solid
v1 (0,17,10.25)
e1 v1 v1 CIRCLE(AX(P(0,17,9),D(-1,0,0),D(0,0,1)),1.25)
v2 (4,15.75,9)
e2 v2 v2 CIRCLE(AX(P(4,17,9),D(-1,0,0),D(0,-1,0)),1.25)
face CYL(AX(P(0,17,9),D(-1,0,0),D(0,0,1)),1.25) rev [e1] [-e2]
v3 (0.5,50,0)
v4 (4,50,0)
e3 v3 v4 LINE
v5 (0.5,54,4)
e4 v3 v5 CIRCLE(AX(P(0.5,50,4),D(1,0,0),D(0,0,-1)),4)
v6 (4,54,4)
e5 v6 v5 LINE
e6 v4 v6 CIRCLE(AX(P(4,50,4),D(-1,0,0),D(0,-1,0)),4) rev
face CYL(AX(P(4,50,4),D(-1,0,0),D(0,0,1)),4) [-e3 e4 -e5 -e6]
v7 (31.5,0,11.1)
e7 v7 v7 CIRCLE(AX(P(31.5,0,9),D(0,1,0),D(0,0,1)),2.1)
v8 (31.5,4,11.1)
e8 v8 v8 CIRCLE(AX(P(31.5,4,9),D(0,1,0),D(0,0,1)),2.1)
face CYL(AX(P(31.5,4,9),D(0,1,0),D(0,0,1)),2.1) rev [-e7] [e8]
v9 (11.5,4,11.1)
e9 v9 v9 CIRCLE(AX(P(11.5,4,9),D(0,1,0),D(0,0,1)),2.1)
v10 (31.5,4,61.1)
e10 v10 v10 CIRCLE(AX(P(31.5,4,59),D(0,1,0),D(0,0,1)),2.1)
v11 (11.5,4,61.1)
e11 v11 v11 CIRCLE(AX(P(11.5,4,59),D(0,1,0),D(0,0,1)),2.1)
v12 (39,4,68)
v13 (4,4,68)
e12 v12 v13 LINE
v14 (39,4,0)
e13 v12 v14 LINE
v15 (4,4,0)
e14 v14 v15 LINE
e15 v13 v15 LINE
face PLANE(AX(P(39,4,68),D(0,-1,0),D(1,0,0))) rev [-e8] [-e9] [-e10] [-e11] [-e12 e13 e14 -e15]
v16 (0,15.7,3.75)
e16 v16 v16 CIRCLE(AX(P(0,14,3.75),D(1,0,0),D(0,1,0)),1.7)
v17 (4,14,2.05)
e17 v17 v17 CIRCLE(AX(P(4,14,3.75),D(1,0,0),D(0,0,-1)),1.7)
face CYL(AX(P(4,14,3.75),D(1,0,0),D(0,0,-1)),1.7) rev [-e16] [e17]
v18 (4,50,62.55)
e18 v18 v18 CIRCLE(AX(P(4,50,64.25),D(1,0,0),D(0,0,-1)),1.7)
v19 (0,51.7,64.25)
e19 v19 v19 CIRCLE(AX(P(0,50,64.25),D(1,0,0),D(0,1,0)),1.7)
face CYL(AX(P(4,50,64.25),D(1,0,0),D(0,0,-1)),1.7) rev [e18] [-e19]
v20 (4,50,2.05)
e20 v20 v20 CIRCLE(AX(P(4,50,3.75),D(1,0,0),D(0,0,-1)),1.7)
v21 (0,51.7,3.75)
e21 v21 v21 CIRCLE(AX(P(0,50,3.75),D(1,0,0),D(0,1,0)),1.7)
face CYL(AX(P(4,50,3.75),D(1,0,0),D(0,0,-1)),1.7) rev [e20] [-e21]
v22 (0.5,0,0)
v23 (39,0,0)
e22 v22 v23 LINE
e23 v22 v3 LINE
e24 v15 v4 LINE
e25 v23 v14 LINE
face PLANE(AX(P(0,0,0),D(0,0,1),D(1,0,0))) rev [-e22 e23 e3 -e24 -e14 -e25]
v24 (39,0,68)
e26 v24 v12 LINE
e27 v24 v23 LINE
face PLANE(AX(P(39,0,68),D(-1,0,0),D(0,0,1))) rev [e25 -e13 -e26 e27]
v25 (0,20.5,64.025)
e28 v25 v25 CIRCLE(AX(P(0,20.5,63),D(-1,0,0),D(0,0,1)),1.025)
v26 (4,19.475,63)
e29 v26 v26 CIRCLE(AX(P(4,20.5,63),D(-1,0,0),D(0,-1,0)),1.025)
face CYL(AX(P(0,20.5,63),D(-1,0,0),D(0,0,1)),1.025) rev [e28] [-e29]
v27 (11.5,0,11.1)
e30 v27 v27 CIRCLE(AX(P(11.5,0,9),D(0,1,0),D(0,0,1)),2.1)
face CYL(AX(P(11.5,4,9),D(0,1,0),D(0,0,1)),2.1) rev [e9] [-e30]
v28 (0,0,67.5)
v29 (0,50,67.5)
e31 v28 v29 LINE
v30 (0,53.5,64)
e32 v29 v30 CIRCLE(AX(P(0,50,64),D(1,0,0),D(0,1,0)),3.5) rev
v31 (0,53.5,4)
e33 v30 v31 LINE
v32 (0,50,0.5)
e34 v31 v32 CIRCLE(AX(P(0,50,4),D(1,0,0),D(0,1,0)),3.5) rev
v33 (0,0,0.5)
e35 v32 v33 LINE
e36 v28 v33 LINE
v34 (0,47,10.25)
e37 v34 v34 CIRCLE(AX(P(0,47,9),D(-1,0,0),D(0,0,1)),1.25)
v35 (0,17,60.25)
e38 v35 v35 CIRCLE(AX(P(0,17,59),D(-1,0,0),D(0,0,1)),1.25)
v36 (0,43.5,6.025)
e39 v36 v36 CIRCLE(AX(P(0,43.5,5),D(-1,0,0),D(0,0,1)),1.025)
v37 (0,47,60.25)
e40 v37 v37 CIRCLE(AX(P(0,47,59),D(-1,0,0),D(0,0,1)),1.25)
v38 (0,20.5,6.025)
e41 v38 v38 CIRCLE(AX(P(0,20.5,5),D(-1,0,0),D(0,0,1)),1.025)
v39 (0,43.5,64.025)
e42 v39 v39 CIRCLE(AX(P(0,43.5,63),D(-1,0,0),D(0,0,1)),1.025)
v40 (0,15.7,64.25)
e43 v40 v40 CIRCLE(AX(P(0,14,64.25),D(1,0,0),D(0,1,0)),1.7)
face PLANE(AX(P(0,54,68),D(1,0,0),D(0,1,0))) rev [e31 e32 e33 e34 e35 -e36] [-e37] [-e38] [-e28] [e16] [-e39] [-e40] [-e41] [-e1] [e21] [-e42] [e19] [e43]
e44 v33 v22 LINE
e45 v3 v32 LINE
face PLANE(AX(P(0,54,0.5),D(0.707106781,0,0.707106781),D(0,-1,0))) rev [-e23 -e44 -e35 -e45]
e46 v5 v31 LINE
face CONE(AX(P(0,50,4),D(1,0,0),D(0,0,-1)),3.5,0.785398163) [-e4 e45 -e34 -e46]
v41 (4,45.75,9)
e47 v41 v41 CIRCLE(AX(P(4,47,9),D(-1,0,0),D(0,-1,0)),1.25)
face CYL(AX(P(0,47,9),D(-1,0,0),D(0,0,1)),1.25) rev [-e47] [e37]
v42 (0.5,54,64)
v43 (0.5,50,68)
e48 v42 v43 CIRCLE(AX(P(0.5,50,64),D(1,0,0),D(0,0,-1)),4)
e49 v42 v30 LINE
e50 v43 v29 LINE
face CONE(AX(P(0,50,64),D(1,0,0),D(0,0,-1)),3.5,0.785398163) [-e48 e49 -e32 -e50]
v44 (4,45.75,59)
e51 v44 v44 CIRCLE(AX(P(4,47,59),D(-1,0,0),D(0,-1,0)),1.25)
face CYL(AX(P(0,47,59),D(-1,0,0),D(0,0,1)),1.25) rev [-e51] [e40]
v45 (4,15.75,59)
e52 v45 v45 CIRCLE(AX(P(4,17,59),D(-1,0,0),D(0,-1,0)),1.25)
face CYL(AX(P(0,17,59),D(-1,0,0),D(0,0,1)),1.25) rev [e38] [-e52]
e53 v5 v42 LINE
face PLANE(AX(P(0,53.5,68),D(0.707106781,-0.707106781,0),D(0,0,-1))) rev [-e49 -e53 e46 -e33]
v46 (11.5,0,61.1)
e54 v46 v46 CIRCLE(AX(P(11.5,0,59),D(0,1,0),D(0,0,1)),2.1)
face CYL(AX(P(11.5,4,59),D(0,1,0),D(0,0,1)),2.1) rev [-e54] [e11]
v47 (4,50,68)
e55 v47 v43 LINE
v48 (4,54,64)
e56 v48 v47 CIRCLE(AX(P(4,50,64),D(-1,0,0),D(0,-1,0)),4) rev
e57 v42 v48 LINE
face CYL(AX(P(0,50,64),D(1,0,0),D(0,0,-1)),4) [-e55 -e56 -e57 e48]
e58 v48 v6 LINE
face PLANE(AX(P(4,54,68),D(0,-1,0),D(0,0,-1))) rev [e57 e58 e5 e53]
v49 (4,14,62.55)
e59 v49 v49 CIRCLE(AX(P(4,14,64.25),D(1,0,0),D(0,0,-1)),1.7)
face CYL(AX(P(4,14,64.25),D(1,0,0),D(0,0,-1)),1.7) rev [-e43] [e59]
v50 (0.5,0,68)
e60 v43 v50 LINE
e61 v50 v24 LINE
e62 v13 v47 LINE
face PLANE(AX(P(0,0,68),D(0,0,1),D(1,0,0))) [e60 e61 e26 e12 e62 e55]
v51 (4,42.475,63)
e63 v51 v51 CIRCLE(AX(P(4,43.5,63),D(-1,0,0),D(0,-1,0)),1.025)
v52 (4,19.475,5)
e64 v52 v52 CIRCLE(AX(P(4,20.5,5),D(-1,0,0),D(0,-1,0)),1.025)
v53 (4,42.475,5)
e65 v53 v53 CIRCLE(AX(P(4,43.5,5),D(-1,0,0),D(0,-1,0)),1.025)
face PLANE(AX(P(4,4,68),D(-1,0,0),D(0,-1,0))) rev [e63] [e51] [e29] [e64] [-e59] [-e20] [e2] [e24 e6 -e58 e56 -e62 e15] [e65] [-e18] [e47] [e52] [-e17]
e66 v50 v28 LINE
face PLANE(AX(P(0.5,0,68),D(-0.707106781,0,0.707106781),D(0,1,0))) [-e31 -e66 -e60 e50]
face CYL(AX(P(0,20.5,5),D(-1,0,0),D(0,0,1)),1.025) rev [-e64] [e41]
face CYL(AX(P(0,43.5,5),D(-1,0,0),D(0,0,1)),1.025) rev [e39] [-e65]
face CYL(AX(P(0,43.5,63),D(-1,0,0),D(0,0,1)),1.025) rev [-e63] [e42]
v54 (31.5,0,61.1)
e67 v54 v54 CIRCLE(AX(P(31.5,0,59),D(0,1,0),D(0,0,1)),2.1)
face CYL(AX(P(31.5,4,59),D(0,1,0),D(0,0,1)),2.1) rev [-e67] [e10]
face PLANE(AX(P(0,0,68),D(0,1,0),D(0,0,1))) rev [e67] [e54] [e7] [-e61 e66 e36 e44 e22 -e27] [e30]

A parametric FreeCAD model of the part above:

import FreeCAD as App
import Part
import Sketcher
Q = App.Units.Quantity


def edges_at(feature, points):
    """Names of the edges that pass closest to the given points."""
    edges = feature.Shape.Edges
    near = lambda p: min(range(len(edges)), key=lambda i: edges[i].distToShape(Part.Vertex(*p))[0])
    return sorted({f"Edge{near(p) + 1}" for p in points})

doc = App.newDocument("Part")
body = doc.addObject("PartDesign::Body", "Body")

sketch1 = doc.addObject("Sketcher::SketchObject", "Sketch")
body.addObject(sketch1)
sketch1.AttachmentSupport = (doc.XY_Plane, [""])
sketch1.MapMode = "FlatFace"
sketch1.addGeometry(Part.LineSegment(App.Vector(0, 0, 0), App.Vector(39, 0, 0)), False)
sketch1.addGeometry(Part.LineSegment(App.Vector(39, 0, 0), App.Vector(39, 4, 0)), False)
sketch1.addGeometry(Part.LineSegment(App.Vector(39, 4, 0), App.Vector(4, 4, 0)), False)
sketch1.addGeometry(Part.LineSegment(App.Vector(4, 4, 0), App.Vector(4, 54, 0)), False)
sketch1.addGeometry(Part.LineSegment(App.Vector(4, 54, 0), App.Vector(0, 54, 0)), False)
sketch1.addGeometry(Part.LineSegment(App.Vector(0, 54, 0), App.Vector(0, 0, 0)), False)
sketch1.addConstraint(Sketcher.Constraint("Coincident", 0, 2, 1, 1))
sketch1.addConstraint(Sketcher.Constraint("Coincident", 1, 2, 2, 1))
sketch1.addConstraint(Sketcher.Constraint("Coincident", 2, 2, 3, 1))
sketch1.addConstraint(Sketcher.Constraint("Coincident", 3, 2, 4, 1))
sketch1.addConstraint(Sketcher.Constraint("Coincident", 4, 2, 5, 1))
sketch1.addConstraint(Sketcher.Constraint("Coincident", 5, 2, 0, 1))
sketch1.addConstraint(Sketcher.Constraint("Horizontal", 0))
sketch1.addConstraint(Sketcher.Constraint("Vertical", 1))
sketch1.addConstraint(Sketcher.Constraint("Horizontal", 2))
sketch1.addConstraint(Sketcher.Constraint("Vertical", 3))
sketch1.addConstraint(Sketcher.Constraint("Horizontal", 4))
sketch1.addConstraint(Sketcher.Constraint("Vertical", 5))
sketch1.addConstraint(Sketcher.Constraint("Coincident", 5, 2, -1, 1))
sketch1.addConstraint(Sketcher.Constraint("Equal", 4, 1))
sketch1.addConstraint(Sketcher.Constraint("DistanceX", 0, 1, 0, 2, Q("39 mm")))
sketch1.addConstraint(Sketcher.Constraint("DistanceX", 2, 2, 2, 1, Q("35 mm")))
sketch1.addConstraint(Sketcher.Constraint("DistanceY", 3, 1, 3, 2, Q("50 mm")))
pad1 = doc.addObject("PartDesign::Pad", "Pad")
body.addObject(pad1)
pad1.Profile = sketch1
pad1.Length = 68

sketch2 = doc.addObject("Sketcher::SketchObject", "Sketch001")
body.addObject(sketch2)
sketch2.AttachmentSupport = (doc.YZ_Plane, [""])
sketch2.MapMode = "FlatFace"
sketch2.AttachmentOffset = App.Placement(App.Vector(0, 0, 4), App.Rotation())
sketch2.addGeometry(Part.Circle(App.Vector(50, 64.2, 0), App.Vector(0, 0, 1), 1.7), False)
sketch2.addGeometry(Part.Circle(App.Vector(50, 3.8, 0), App.Vector(0, 0, 1), 1.7), False)
sketch2.addGeometry(Part.Circle(App.Vector(14, 3.8, 0), App.Vector(0, 0, 1), 1.7), False)
sketch2.addGeometry(Part.Circle(App.Vector(14, 64.2, 0), App.Vector(0, 0, 1), 1.7), False)
sketch2.addConstraint(Sketcher.Constraint("Equal", 0, 1))
sketch2.addConstraint(Sketcher.Constraint("Equal", 1, 2))
sketch2.addConstraint(Sketcher.Constraint("Equal", 2, 3))
sketch2.addConstraint(Sketcher.Constraint("Horizontal", 1, 3, 2, 3))
sketch2.addConstraint(Sketcher.Constraint("Horizontal", 0, 3, 3, 3))
sketch2.addConstraint(Sketcher.Constraint("Vertical", 0, 3, 1, 3))
sketch2.addConstraint(Sketcher.Constraint("Vertical", 2, 3, 3, 3))
sketch2.addConstraint(Sketcher.Constraint("Diameter", 0, Q("3.4 mm")))
sketch2.addConstraint(Sketcher.Constraint("DistanceX", -1, 1, 0, 3, Q("50 mm")))
sketch2.addConstraint(Sketcher.Constraint("DistanceX", -1, 1, 2, 3, Q("14 mm")))
sketch2.addConstraint(Sketcher.Constraint("DistanceY", 1, 3, 0, 3, Q("60.5 mm")))
sketch2.addConstraint(Sketcher.Constraint("DistanceY", -1, 1, 0, 3, Q("64.25 mm")))
doc.recompute()
hole = doc.addObject("PartDesign::Hole", "Hole")
body.addObject(hole)
hole.Profile = sketch2
hole.ThreadType = "None"
hole.Diameter = 3.4
hole.DepthType = "Dimension"
hole.Depth = 5
hole.DrillPoint = "Angled"
hole.DrillPointAngle = 118

sketch3 = doc.addObject("Sketcher::SketchObject", "Sketch002")
body.addObject(sketch3)
sketch3.AttachmentSupport = (doc.XZ_Plane, [""])
sketch3.MapMode = "FlatFace"
sketch3.AttachmentOffset = App.Placement(App.Vector(0, 0, -4), App.Rotation())
sketch3.addGeometry(Part.Circle(App.Vector(31.5, 59, 0), App.Vector(0, 0, 1), 2.1), False)
sketch3.addGeometry(Part.Circle(App.Vector(11.5, 59, 0), App.Vector(0, 0, 1), 2.1), False)
sketch3.addGeometry(Part.Circle(App.Vector(11.5, 9, 0), App.Vector(0, 0, 1), 2.1), False)
sketch3.addGeometry(Part.Circle(App.Vector(31.5, 9, 0), App.Vector(0, 0, 1), 2.1), False)
sketch3.addConstraint(Sketcher.Constraint("Equal", 0, 1))
sketch3.addConstraint(Sketcher.Constraint("Equal", 1, 2))
sketch3.addConstraint(Sketcher.Constraint("Equal", 2, 3))
sketch3.addConstraint(Sketcher.Constraint("Horizontal", 0, 3, 1, 3))
sketch3.addConstraint(Sketcher.Constraint("Horizontal", 2, 3, 3, 3))
sketch3.addConstraint(Sketcher.Constraint("Vertical", 1, 3, 2, 3))
sketch3.addConstraint(Sketcher.Constraint("Vertical", 0, 3, 3, 3))
sketch3.addConstraint(Sketcher.Constraint("Diameter", 0, Q("4.2 mm")))
sketch3.addConstraint(Sketcher.Constraint("DistanceY", -1, 1, 0, 3, Q("59 mm")))
sketch3.addConstraint(Sketcher.Constraint("DistanceY", -1, 1, 2, 3, Q("9 mm")))
sketch3.addConstraint(Sketcher.Constraint("DistanceX", 1, 3, 0, 3, Q("20 mm")))
sketch3.addConstraint(Sketcher.Constraint("DistanceX", -1, 1, 0, 3, Q("31.5 mm")))
doc.recompute()
hole2 = doc.addObject("PartDesign::Hole", "Hole001")
body.addObject(hole2)
hole2.Profile = sketch3
hole2.ThreadType = "None"
hole2.Diameter = 4.2
hole2.DepthType = "Dimension"
hole2.Depth = 14
hole2.DrillPoint = "Angled"
hole2.DrillPointAngle = 118
hole2.Reversed = True
doc.recompute()

fillet = doc.addObject("PartDesign::Fillet", "Fillet")
body.addObject(fillet)
fillet.Base = (hole2, edges_at(hole2, [(2, 54, 68), (2, 54, 0)]))
fillet.Radius = 4
doc.recompute()

chamfer = doc.addObject("PartDesign::Chamfer", "Chamfer")
body.addObject(chamfer)
chamfer.Base = (fillet, edges_at(fillet, [
    (0, 25, 68),
    (0, 25, 0),
    (0, 54, 34),
    (0, 52.828, 1.172),
    (0, 52.828, 66.828),
]))
chamfer.Size = 0.5

sketch4 = doc.addObject("Sketcher::SketchObject", "Sketch003")
body.addObject(sketch4)
sketch4.AttachmentSupport = (doc.YZ_Plane, [""])
sketch4.MapMode = "FlatFace"
sketch4.addGeometry(Part.Circle(App.Vector(43.5, 5, 0), App.Vector(0, 0, 1), 1), False)
sketch4.addGeometry(Part.Circle(App.Vector(43.5, 63, 0), App.Vector(0, 0, 1), 1), False)
sketch4.addGeometry(Part.Circle(App.Vector(20.5, 63, 0), App.Vector(0, 0, 1), 1), False)
sketch4.addGeometry(Part.Circle(App.Vector(20.5, 5, 0), App.Vector(0, 0, 1), 1), False)
sketch4.addConstraint(Sketcher.Constraint("Equal", 0, 1))
sketch4.addConstraint(Sketcher.Constraint("Equal", 1, 2))
sketch4.addConstraint(Sketcher.Constraint("Equal", 2, 3))
sketch4.addConstraint(Sketcher.Constraint("Horizontal", 1, 3, 2, 3))
sketch4.addConstraint(Sketcher.Constraint("Horizontal", 0, 3, 3, 3))
sketch4.addConstraint(Sketcher.Constraint("Vertical", 0, 3, 1, 3))
sketch4.addConstraint(Sketcher.Constraint("Vertical", 2, 3, 3, 3))
sketch4.addConstraint(Sketcher.Constraint("Diameter", 0, Q("2.05 mm")))
sketch4.addConstraint(Sketcher.Constraint("DistanceY", -1, 1, 0, 3, Q("5 mm")))
sketch4.addConstraint(Sketcher.Constraint("DistanceY", -1, 1, 1, 3, Q("63 mm")))
sketch4.addConstraint(Sketcher.Constraint("DistanceX", 2, 3, 1, 3, Q("23 mm")))
sketch4.addConstraint(Sketcher.Constraint("DistanceX", -1, 1, 0, 3, Q("43.5 mm")))
doc.recompute()
hole3 = doc.addObject("PartDesign::Hole", "Hole002")
body.addObject(hole3)
hole3.Profile = sketch4
hole3.ThreadType = "None"
hole3.Diameter = 2.05
hole3.DepthType = "Dimension"
hole3.Depth = 7.25
hole3.DrillPoint = "Angled"
hole3.DrillPointAngle = 118
hole3.Reversed = True

sketch5 = doc.addObject("Sketcher::SketchObject", "Sketch004")
body.addObject(sketch5)
sketch5.AttachmentSupport = (doc.YZ_Plane, [""])
sketch5.MapMode = "FlatFace"
sketch5.addGeometry(Part.Circle(App.Vector(17, 9, 0), App.Vector(0, 0, 1), 1.2), False)
sketch5.addGeometry(Part.Circle(App.Vector(47, 9, 0), App.Vector(0, 0, 1), 1.2), False)
sketch5.addGeometry(Part.Circle(App.Vector(47, 59, 0), App.Vector(0, 0, 1), 1.2), False)
sketch5.addGeometry(Part.Circle(App.Vector(17, 59, 0), App.Vector(0, 0, 1), 1.2), False)
sketch5.addConstraint(Sketcher.Constraint("Equal", 0, 1))
sketch5.addConstraint(Sketcher.Constraint("Equal", 1, 2))
sketch5.addConstraint(Sketcher.Constraint("Equal", 2, 3))
sketch5.addConstraint(Sketcher.Constraint("Horizontal", 0, 3, 1, 3))
sketch5.addConstraint(Sketcher.Constraint("Horizontal", 2, 3, 3, 3))
sketch5.addConstraint(Sketcher.Constraint("Vertical", 1, 3, 2, 3))
sketch5.addConstraint(Sketcher.Constraint("Vertical", 0, 3, 3, 3))
sketch5.addConstraint(Sketcher.Constraint("Diameter", 0, Q("2.5 mm")))
sketch5.addConstraint(Sketcher.Constraint("DistanceX", -1, 1, 0, 3, Q("17 mm")))
sketch5.addConstraint(Sketcher.Constraint("DistanceY", -1, 1, 0, 3, Q("9 mm")))
sketch5.addConstraint(Sketcher.Constraint("DistanceX", -1, 1, 1, 3, Q("47 mm")))
sketch5.addConstraint(Sketcher.Constraint("DistanceY", -1, 1, 2, 3, Q("59 mm")))
doc.recompute()
hole4 = doc.addObject("PartDesign::Hole", "Hole003")
body.addObject(hole4)
hole4.Profile = sketch5
hole4.ThreadType = "None"
hole4.Diameter = 2.5
hole4.DepthType = "Dimension"
hole4.Depth = 8.5
hole4.DrillPoint = "Angled"
hole4.DrillPointAngle = 118
hole4.Reversed = True

doc.recompute()
